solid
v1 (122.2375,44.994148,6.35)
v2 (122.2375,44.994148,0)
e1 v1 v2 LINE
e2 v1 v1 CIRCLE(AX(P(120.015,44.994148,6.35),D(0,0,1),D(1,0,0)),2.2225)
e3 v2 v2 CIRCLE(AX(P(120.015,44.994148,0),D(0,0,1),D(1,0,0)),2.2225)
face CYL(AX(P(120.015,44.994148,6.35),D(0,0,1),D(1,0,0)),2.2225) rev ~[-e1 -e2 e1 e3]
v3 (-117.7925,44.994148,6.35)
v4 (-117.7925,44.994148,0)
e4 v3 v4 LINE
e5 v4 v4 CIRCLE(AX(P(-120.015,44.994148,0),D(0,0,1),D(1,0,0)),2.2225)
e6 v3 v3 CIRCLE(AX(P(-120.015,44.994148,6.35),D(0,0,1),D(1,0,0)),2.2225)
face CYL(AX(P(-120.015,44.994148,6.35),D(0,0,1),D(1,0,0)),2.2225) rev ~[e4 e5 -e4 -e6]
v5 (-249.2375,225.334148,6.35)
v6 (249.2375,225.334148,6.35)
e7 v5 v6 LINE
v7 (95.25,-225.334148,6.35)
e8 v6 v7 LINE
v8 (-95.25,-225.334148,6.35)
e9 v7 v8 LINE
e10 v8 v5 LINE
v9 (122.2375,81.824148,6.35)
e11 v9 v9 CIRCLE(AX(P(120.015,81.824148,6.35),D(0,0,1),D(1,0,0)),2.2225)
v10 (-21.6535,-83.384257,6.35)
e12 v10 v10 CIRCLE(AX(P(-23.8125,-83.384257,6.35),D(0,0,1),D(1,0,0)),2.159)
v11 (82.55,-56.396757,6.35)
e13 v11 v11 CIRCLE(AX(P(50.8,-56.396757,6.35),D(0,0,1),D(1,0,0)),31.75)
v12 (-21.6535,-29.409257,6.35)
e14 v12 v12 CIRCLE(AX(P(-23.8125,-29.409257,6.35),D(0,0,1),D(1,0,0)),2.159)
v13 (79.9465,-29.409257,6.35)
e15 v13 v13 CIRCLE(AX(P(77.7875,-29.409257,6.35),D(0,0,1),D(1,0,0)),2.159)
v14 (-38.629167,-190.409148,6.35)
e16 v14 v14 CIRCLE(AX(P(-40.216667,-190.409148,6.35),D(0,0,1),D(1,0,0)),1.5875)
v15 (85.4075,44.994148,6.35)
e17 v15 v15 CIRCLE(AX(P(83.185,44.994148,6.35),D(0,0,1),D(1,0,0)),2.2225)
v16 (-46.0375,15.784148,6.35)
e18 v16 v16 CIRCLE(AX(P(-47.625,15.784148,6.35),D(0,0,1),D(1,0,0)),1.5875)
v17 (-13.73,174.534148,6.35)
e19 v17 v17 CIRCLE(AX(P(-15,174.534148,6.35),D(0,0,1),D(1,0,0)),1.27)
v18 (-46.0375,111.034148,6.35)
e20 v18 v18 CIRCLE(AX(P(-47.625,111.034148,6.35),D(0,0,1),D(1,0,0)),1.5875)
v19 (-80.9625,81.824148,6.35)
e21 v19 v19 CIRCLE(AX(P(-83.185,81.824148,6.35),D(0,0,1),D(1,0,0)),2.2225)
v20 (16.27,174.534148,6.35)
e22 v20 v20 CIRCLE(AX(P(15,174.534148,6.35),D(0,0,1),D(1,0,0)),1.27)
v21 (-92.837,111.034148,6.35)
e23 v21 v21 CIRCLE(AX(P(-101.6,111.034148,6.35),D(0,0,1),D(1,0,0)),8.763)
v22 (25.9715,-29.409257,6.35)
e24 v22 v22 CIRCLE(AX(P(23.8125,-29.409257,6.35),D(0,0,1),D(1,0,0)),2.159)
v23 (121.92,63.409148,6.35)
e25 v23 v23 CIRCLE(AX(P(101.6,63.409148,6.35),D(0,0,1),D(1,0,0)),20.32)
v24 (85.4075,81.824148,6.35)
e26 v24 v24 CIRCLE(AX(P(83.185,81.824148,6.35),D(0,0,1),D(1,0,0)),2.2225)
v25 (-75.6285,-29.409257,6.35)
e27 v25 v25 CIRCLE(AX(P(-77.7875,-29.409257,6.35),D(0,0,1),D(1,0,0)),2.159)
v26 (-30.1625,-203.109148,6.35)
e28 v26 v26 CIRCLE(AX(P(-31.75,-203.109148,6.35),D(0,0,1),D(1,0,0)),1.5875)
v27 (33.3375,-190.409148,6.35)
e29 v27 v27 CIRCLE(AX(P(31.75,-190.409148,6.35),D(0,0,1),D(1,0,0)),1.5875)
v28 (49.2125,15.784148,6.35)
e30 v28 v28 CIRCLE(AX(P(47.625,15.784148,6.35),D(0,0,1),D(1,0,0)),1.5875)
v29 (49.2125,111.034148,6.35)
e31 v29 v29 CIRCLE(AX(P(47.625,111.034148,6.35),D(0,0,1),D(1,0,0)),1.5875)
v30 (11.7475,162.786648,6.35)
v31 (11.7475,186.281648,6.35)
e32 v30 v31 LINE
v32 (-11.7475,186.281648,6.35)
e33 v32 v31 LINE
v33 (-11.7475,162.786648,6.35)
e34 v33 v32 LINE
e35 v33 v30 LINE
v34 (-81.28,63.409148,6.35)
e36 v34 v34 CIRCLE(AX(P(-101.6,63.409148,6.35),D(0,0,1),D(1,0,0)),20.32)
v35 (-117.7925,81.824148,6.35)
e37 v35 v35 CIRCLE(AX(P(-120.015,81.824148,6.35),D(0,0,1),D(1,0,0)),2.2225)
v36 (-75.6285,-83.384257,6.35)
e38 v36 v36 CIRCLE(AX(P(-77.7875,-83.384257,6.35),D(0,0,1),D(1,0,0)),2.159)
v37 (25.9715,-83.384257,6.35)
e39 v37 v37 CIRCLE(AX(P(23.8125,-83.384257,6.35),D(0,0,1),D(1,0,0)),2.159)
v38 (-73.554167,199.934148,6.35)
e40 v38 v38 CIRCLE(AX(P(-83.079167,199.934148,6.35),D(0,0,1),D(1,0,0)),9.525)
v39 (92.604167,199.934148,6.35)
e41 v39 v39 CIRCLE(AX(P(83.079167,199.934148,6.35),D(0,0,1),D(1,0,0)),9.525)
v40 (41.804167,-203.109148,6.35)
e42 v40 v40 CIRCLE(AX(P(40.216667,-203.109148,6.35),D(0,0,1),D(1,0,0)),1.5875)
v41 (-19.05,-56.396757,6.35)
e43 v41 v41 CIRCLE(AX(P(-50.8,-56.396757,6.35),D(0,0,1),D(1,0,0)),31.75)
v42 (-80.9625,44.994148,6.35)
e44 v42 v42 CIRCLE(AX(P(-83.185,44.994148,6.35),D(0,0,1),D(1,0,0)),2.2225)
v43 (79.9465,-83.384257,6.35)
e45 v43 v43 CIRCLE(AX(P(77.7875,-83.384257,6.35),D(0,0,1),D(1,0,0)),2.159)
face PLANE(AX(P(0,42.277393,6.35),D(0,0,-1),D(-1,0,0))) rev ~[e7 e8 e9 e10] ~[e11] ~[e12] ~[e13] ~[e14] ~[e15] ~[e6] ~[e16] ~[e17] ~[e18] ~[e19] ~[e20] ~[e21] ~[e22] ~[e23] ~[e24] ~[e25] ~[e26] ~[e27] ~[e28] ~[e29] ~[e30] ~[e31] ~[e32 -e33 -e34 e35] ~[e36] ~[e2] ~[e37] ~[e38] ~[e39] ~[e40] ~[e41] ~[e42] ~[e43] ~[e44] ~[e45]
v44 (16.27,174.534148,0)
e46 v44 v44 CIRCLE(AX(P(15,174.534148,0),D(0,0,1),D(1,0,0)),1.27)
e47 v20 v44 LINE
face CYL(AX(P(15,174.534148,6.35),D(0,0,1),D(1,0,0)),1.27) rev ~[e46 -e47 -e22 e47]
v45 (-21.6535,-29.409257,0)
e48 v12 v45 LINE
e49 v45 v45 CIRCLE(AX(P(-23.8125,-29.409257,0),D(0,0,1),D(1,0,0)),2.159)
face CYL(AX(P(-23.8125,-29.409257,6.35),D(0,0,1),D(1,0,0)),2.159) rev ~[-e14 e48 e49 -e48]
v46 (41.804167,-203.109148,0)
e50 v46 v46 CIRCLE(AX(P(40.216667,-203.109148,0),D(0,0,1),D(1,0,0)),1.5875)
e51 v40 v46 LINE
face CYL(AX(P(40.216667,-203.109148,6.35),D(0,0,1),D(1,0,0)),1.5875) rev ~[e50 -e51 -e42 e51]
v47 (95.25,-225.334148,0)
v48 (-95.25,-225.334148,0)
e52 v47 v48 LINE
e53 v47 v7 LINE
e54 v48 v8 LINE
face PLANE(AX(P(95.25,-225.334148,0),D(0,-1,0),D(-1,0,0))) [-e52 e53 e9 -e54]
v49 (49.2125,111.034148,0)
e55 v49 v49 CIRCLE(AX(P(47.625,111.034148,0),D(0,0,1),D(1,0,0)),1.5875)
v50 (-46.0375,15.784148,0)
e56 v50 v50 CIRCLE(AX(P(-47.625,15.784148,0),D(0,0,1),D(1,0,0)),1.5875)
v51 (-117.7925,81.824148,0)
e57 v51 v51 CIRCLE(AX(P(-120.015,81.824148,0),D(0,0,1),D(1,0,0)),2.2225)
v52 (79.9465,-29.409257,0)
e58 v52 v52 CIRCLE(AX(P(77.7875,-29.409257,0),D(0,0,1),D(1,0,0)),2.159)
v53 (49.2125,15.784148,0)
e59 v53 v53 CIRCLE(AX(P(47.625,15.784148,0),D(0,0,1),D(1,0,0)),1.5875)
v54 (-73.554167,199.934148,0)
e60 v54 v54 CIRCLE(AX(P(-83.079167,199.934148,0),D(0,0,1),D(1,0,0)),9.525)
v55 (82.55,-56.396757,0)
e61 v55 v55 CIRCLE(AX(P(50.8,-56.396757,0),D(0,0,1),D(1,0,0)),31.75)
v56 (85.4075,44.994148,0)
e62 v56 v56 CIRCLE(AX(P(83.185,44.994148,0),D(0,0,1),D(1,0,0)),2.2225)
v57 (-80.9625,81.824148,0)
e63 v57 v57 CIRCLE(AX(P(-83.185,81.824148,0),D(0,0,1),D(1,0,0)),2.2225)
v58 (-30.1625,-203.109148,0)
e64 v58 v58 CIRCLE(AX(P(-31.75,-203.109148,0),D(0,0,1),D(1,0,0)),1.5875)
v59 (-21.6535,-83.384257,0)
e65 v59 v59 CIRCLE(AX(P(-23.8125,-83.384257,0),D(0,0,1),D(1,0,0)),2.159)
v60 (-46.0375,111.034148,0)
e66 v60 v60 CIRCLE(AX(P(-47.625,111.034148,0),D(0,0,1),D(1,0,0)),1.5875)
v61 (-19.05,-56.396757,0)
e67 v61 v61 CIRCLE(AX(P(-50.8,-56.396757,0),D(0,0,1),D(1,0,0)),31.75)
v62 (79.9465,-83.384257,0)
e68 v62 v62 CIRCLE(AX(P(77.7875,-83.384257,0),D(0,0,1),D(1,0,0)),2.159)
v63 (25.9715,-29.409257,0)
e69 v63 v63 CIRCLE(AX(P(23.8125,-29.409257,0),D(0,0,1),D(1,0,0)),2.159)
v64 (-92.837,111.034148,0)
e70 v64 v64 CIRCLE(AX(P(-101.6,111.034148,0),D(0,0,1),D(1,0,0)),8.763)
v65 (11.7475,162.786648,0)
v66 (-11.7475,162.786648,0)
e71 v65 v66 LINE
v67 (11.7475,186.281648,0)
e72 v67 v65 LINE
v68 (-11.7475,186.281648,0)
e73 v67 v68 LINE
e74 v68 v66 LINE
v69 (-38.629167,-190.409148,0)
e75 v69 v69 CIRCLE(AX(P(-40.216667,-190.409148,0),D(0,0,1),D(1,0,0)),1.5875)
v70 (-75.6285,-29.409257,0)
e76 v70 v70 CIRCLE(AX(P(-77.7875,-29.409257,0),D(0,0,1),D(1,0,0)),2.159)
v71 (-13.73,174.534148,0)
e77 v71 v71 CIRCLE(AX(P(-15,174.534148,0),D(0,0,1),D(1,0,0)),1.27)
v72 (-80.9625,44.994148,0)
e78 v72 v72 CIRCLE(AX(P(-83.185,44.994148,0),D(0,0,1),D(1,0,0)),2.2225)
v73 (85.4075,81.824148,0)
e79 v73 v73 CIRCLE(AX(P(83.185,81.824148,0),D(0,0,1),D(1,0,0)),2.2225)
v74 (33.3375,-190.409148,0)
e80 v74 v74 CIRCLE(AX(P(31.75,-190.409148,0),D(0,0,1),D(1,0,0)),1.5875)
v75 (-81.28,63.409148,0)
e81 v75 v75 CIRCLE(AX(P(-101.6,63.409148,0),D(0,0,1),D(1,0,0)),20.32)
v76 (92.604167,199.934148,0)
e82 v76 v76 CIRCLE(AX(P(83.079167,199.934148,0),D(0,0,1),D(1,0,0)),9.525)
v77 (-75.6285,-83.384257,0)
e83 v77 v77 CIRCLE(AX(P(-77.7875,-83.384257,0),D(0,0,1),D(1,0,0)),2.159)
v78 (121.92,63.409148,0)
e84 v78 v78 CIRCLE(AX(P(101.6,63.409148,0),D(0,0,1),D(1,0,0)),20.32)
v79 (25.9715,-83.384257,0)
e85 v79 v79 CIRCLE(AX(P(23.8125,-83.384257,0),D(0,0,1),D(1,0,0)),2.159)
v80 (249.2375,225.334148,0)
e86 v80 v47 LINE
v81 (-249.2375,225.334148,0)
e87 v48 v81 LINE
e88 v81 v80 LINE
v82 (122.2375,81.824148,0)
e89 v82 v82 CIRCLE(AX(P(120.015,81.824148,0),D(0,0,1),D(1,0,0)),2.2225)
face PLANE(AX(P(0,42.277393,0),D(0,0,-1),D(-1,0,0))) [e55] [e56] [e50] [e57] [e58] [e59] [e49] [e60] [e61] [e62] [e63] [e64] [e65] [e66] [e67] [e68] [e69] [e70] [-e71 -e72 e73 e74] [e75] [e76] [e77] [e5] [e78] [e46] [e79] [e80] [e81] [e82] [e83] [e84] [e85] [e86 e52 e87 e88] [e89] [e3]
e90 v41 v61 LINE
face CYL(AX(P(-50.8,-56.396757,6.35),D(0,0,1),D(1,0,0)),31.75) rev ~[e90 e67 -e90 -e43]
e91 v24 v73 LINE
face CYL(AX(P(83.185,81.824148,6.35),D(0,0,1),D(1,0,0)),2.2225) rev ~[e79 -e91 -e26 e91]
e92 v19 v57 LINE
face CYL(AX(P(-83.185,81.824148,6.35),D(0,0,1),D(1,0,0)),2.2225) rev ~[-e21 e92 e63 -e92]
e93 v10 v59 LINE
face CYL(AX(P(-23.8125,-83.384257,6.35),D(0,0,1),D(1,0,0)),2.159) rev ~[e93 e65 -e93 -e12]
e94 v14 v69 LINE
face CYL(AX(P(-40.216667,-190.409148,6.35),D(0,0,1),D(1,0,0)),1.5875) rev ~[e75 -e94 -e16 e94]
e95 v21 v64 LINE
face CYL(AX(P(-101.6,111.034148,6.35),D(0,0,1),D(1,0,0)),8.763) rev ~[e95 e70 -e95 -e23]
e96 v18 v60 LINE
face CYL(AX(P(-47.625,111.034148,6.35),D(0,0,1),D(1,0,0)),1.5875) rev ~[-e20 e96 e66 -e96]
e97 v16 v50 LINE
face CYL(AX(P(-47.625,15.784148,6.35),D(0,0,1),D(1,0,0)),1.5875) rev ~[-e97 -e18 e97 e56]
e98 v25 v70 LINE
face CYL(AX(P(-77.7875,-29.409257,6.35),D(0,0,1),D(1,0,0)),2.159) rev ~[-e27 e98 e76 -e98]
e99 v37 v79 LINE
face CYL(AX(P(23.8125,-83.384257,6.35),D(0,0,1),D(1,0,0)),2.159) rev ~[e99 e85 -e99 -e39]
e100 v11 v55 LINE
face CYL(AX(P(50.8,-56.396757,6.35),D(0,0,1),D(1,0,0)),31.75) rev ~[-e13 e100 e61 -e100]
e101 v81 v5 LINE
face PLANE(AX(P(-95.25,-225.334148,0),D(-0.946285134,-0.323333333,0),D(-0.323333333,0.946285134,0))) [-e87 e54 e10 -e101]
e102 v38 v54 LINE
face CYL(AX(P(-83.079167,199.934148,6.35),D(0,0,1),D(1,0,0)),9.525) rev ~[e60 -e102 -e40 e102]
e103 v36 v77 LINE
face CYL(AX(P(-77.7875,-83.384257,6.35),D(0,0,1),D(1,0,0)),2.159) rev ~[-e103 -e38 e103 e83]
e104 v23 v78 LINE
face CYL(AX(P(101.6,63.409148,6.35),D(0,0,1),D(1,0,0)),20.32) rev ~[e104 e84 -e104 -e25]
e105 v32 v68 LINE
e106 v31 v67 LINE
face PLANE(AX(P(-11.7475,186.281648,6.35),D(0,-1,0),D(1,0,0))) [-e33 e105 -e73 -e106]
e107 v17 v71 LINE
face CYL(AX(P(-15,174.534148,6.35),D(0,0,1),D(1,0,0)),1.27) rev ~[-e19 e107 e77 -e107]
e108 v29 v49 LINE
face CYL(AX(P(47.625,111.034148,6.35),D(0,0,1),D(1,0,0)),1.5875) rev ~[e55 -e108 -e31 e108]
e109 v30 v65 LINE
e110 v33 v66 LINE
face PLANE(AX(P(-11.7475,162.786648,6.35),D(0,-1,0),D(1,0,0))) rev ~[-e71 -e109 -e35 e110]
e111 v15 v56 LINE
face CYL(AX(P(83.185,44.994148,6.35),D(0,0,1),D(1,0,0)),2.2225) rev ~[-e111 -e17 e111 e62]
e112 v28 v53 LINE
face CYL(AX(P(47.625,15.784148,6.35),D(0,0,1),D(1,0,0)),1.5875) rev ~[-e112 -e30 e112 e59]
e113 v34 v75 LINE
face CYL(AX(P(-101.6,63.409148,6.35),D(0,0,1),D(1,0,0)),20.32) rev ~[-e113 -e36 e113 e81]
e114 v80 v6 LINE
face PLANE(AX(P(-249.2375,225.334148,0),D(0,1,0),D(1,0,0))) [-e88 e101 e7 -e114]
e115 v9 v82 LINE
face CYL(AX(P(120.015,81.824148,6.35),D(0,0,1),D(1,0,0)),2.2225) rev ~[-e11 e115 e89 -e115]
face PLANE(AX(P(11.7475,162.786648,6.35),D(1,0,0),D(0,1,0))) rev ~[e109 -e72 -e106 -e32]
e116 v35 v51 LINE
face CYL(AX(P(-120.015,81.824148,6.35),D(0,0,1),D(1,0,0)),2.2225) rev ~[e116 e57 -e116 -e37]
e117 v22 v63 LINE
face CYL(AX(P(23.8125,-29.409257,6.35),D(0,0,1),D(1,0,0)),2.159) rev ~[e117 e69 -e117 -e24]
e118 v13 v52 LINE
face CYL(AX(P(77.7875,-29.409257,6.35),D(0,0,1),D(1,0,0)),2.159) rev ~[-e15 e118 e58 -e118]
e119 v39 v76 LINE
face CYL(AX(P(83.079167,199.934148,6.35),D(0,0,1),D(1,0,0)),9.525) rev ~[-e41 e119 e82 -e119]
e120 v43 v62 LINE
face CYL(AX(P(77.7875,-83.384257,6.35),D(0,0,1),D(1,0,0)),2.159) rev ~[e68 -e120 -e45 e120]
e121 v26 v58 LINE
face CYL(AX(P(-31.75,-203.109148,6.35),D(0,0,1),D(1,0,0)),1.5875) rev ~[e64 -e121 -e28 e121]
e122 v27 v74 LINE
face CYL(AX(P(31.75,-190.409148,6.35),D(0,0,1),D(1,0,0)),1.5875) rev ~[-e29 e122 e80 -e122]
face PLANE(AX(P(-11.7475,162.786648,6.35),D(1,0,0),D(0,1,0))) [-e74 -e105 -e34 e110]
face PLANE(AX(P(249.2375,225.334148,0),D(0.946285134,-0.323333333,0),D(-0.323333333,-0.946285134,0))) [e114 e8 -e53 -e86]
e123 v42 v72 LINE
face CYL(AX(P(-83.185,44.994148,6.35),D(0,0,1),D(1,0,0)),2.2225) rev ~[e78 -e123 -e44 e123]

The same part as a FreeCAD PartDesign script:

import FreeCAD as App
import Part
import Sketcher
from FreeCAD import Vector
Q = App.Units.Quantity


def add_polygon(sketch, points):
    """Adds a closed chain of lines whose ends are joined by coincident constraints."""
    first, n = sketch.GeometryCount, len(points)
    for a, b in zip(points, points[1:] + points[:1]):
        sketch.addGeometry(Part.LineSegment(App.Vector(*a, 0), App.Vector(*b, 0)), False)
    for i in range(n):
        sketch.addConstraint(Sketcher.Constraint("Coincident", first + i, 2, first + (i + 1) % n, 1))

doc = App.newDocument("Part")
body = doc.addObject("PartDesign::Body", "Body")

# Sketch on XY plane
sketch1 = body.newObject("Sketcher::SketchObject", "Sketch")
sketch1.AttachmentSupport = (doc.getObject("XY_Plane"), [""])
sketch1.MapMode = "FlatFace"
add_polygon(sketch1, [(249, 225), (-249, 225), (-95, -225), (95, -225)])  # lines 0-3
sketch1.addConstraint([
    Sketcher.Constraint("Horizontal", 0),
    Sketcher.Constraint("Horizontal", 2),
    Sketcher.Constraint("Equal", 1, 3),
    Sketcher.Constraint("DistanceX", 2, 1, 2, 2, Q("7.5 in")),
    Sketcher.Constraint("Distance", 1, Q("18.75 in")),
    Sketcher.Constraint("DistanceX", 0, 2, 0, 1, Q("19.625 in")),
    Sketcher.Constraint("DistanceX", 1, 2, -1, 1, Q("3.75 in")),
    Sketcher.Constraint("DistanceY", -1, 1, 0, 2, Q("225.334148 mm")),
])
pad1 = body.newObject("PartDesign::Pad", "Pad")
pad1.Profile = sketch1
pad1.Length = Q("0.25 in")

# Sketch on XY plane
sketch2 = body.newObject("Sketcher::SketchObject", "Sketch001")
sketch2.AttachmentSupport = (doc.getObject("XY_Plane"), [""])
sketch2.MapMode = "FlatFace"
sketch2.AttachmentOffset = App.Placement(Vector(0, 0, 0.25 * 25.4), App.Rotation())
sketch2.addGeometry(Part.Circle(Vector(-47.6, 15.8, 0), Vector(0, 0, 1), 1.6), False)  # 0
sketch2.addGeometry(Part.Circle(Vector(-47.6, 111, 0), Vector(0, 0, 1), 1.6), False)  # 1
sketch2.addGeometry(Part.Circle(Vector(47.6, 15.8, 0), Vector(0, 0, 1), 1.6), False)  # 2
sketch2.addGeometry(Part.Circle(Vector(47.6, 111, 0), Vector(0, 0, 1), 1.6), False)  # 3
add_polygon(sketch2, [(-11.7, 186.3), (-11.7, 162.8), (11.7, 162.8), (11.7, 186.3)])  # lines 4-7
sketch2.addGeometry(Part.Circle(Vector(-101.6, 111, 0), Vector(0, 0, 1), 8.8), False)  # 8
sketch2.addGeometry(Part.Circle(Vector(15, 174.5, 0), Vector(0, 0, 1), 1.3), False)  # 9
sketch2.addGeometry(Part.Circle(Vector(-15, 174.5, 0), Vector(0, 0, 1), 1.3), False)  # 10
sketch2.addGeometry(Part.Circle(Vector(-40.2, -190.4, 0), Vector(0, 0, 1), 1.6), False)  # 11
sketch2.addGeometry(Part.Circle(Vector(-31.8, -203.1, 0), Vector(0, 0, 1), 1.6), False)  # 12
sketch2.addGeometry(Part.Circle(Vector(31.8, -190.4, 0), Vector(0, 0, 1), 1.6), False)  # 13
sketch2.addGeometry(Part.Circle(Vector(40.2, -203.1, 0), Vector(0, 0, 1), 1.6), False)  # 14
sketch2.addGeometry(Part.Circle(Vector(-77.8, -29.4, 0), Vector(0, 0, 1), 2.2), False)  # 15
sketch2.addGeometry(Part.Circle(Vector(-23.8, -29.4, 0), Vector(0, 0, 1), 2.2), False)  # 16
sketch2.addGeometry(Part.Circle(Vector(-77.8, -83.4, 0), Vector(0, 0, 1), 2.2), False)  # 17
sketch2.addGeometry(Part.Circle(Vector(-23.8, -83.4, 0), Vector(0, 0, 1), 2.2), False)  # 18
sketch2.addGeometry(Part.Circle(Vector(-83.2, 45, 0), Vector(0, 0, 1), 2.2), False)  # 19
sketch2.addGeometry(Part.Circle(Vector(-50.8, -56.4, 0), Vector(0, 0, 1), 31.8), False)  # 20
sketch2.addGeometry(Part.Circle(Vector(-120, 45, 0), Vector(0, 0, 1), 2.2), False)  # 21
sketch2.addGeometry(Part.Circle(Vector(-120, 81.8, 0), Vector(0, 0, 1), 2.2), False)  # 22
sketch2.addGeometry(Part.Circle(Vector(-83.2, 81.8, 0), Vector(0, 0, 1), 2.2), False)  # 23
sketch2.addGeometry(Part.Circle(Vector(-101.6, 63.4, 0), Vector(0, 0, 1), 20.3), False)  # 24
sketch2.addGeometry(Part.Circle(Vector(120, 45, 0), Vector(0, 0, 1), 2.2), False)  # 25
sketch2.addGeometry(Part.Circle(Vector(83.2, 45, 0), Vector(0, 0, 1), 2.2), False)  # 26
sketch2.addGeometry(Part.Circle(Vector(83.2, 81.8, 0), Vector(0, 0, 1), 2.2), False)  # 27
sketch2.addGeometry(Part.Circle(Vector(-83.1, 199.9, 0), Vector(0, 0, 1), 9.5), False)  # 28
sketch2.addGeometry(Part.Circle(Vector(83.1, 199.9, 0), Vector(0, 0, 1), 9.5), False)  # 29
sketch2.addGeometry(Part.Circle(Vector(120, 81.8, 0), Vector(0, 0, 1), 2.2), False)  # 30
sketch2.addGeometry(Part.Circle(Vector(101.6, 63.4, 0), Vector(0, 0, 1), 20.3), False)  # 31
sketch2.addGeometry(Part.Circle(Vector(23.8, -29.4, 0), Vector(0, 0, 1), 2.2), False)  # 32
sketch2.addGeometry(Part.Circle(Vector(77.8, -29.4, 0), Vector(0, 0, 1), 2.2), False)  # 33
sketch2.addGeometry(Part.Circle(Vector(23.8, -83.4, 0), Vector(0, 0, 1), 2.2), False)  # 34
sketch2.addGeometry(Part.Circle(Vector(77.8, -83.4, 0), Vector(0, 0, 1), 2.2), False)  # 35
sketch2.addGeometry(Part.Circle(Vector(50.8, -56.4, 0), Vector(0, 0, 1), 31.8), False)  # 36
sketch2.addConstraint([
    Sketcher.Constraint("Vertical", 4),
    Sketcher.Constraint("Horizontal", 5),
    Sketcher.Constraint("Vertical", 6),
    Sketcher.Constraint("Horizontal", 7),
    Sketcher.Constraint("Equal", 0, 1),
    Sketcher.Constraint("Equal", 1, 2),
    Sketcher.Constraint("Equal", 2, 3),
    Sketcher.Constraint("Equal", 9, 10),
    Sketcher.Constraint("Equal", 3, 11),
    Sketcher.Constraint("Equal", 11, 12),
    Sketcher.Constraint("Equal", 12, 13),
    Sketcher.Constraint("Equal", 13, 14),
    Sketcher.Constraint("Equal", 15, 16),
    Sketcher.Constraint("Equal", 16, 17),
    Sketcher.Constraint("Equal", 17, 18),
    Sketcher.Constraint("Equal", 19, 21),
    Sketcher.Constraint("Equal", 21, 22),
    Sketcher.Constraint("Equal", 22, 23),
    Sketcher.Constraint("Equal", 23, 25),
    Sketcher.Constraint("Equal", 25, 26),
    Sketcher.Constraint("Equal", 26, 27),
    Sketcher.Constraint("Equal", 28, 29),
    Sketcher.Constraint("Equal", 27, 30),
    Sketcher.Constraint("Equal", 24, 31),
    Sketcher.Constraint("Equal", 18, 32),
    Sketcher.Constraint("Equal", 32, 33),
    Sketcher.Constraint("Equal", 33, 34),
    Sketcher.Constraint("Equal", 34, 35),
    Sketcher.Constraint("Equal", 20, 36),
    Sketcher.Constraint("Symmetric", 0, 3, 2, 3, -2),
    Sketcher.Constraint("Symmetric", 1, 3, 3, 3, -2),
    Sketcher.Constraint("Symmetric", 9, 3, 10, 3, -2),
    Sketcher.Constraint("Symmetric", 21, 3, 25, 3, -2),
    Sketcher.Constraint("Symmetric", 19, 3, 26, 3, -2),
    Sketcher.Constraint("Symmetric", 23, 3, 27, 3, -2),
    Sketcher.Constraint("Symmetric", 28, 3, 29, 3, -2),
    Sketcher.Constraint("Symmetric", 22, 3, 30, 3, -2),
    Sketcher.Constraint("Symmetric", 24, 3, 31, 3, -2),
    Sketcher.Constraint("Symmetric", 16, 3, 32, 3, -2),
    Sketcher.Constraint("Symmetric", 15, 3, 33, 3, -2),
    Sketcher.Constraint("Symmetric", 18, 3, 34, 3, -2),
    Sketcher.Constraint("Symmetric", 17, 3, 35, 3, -2),
    Sketcher.Constraint("Symmetric", 20, 3, 36, 3, -2),
    Sketcher.Constraint("Horizontal", 3, 3, 8, 3),
    Sketcher.Constraint("Horizontal", 11, 3, 13, 3),
    Sketcher.Constraint("Horizontal", 12, 3, 14, 3),
    Sketcher.Constraint("Horizontal", 15, 3, 16, 3),
    Sketcher.Constraint("Horizontal", 17, 3, 18, 3),
    Sketcher.Constraint("Horizontal", 19, 3, 21, 3),
    Sketcher.Constraint("Horizontal", 22, 3, 23, 3),
    Sketcher.Constraint("Vertical", 0, 3, 1, 3),
    Sketcher.Constraint("Vertical", 15, 3, 17, 3),
    Sketcher.Constraint("Vertical", 16, 3, 18, 3),
    Sketcher.Constraint("Vertical", 21, 3, 22, 3),
    Sketcher.Constraint("Vertical", 19, 3, 23, 3),
    Sketcher.Constraint("Vertical", 8, 3, 24, 3),
    Sketcher.Constraint("Equal", 7, 4),
    Sketcher.Constraint("Diameter", 9, Q("0.1 in")),
    Sketcher.Constraint("Diameter", 20, Q("2.5 in")),
    Sketcher.Constraint("Diameter", 24, Q("1.6 in")),
    Sketcher.Constraint("Diameter", 8, Q("0.69 in")),
    Sketcher.Constraint("Diameter", 15, Q("0.17 in")),
    Sketcher.Constraint("Diameter", 28, Q("0.75 in")),
    Sketcher.Constraint("Diameter", 0, Q("0.125 in")),
    Sketcher.Constraint("Diameter", 19, Q("0.175 in")),
    Sketcher.Constraint("DistanceX", 8, 3, -1, 1, Q("4 in")),
    Sketcher.Constraint("DistanceX", 20, 3, -1, 1, Q("2 in")),
    Sketcher.Constraint("DistanceY", 10, 3, 28, 3, Q("1 in")),
    Sketcher.Constraint("DistanceX", 18, 3, 35, 3, Q("4 in")),
    Sketcher.Constraint("DistanceY", 3, 3, 9, 3, Q("2.5 in")),
    Sketcher.Constraint("DistanceY", 12, 3, 11, 3, Q("0.5 in")),
    Sketcher.Constraint("DistanceX", 12, 3, 13, 3, Q("2.5 in")),
    Sketcher.Constraint("DistanceX", 19, 3, 0, 3, Q("1.4 in")),
    Sketcher.Constraint("DistanceY", 19, 3, 8, 3, Q("2.6 in")),
    Sketcher.Constraint("DistanceY", 0, 3, 22, 3, Q("2.6 in")),
    Sketcher.Constraint("DistanceX", 0, 3, 25, 3, Q("6.6 in")),
    Sketcher.Constraint("DistanceX", 5, 1, 5, 2, Q("0.925 in")),
    Sketcher.Constraint("DistanceX", 12, 3, -1, 1, Q("1.25 in")),
    Sketcher.Constraint("DistanceY", 0, 3, 1, 3, Q("3.75 in")),
    Sketcher.Constraint("DistanceX", 0, 3, 2, 3, Q("3.75 in")),
    Sketcher.Constraint("DistanceX", 15, 3, -1, 1, Q("3.0625 in")),
    Sketcher.Constraint("DistanceY", 17, 3, 15, 3, Q("2.125 in")),
    Sketcher.Constraint("DistanceY", 20, 3, 15, 3, Q("1.0625 in")),
    Sketcher.Constraint("DistanceY", 24, 3, 23, 3, Q("0.725 in")),
    Sketcher.Constraint("DistanceX", 4, 2, -1, 1, Q("0.4625 in")),
    Sketcher.Constraint("DistanceY", 4, 2, 10, 3, Q("0.4625 in")),
    Sketcher.Constraint("DistanceX", -1, 1, 9, 3, Q("15 mm")),
    Sketcher.Constraint("DistanceY", 11, 3, 15, 3, Q("160.999891 mm")),
    Sketcher.Constraint("DistanceY", -1, 1, 0, 3, Q("15.784148 mm")),
    Sketcher.Constraint("DistanceX", 11, 3, -1, 1, Q("40.216667 mm")),
    Sketcher.Constraint("DistanceY", 11, 3, -1, 1, Q("190.409148 mm")),
    Sketcher.Constraint("DistanceX", -1, 1, 14, 3, Q("40.216667 mm")),
    Sketcher.Constraint("DistanceX", 28, 3, -1, 1, Q("83.079167 mm")),
])
pocket1 = body.newObject("PartDesign::Pocket", "Pocket")
pocket1.Profile = sketch2
pocket1.Type = "ThroughAll"

doc.recompute()
